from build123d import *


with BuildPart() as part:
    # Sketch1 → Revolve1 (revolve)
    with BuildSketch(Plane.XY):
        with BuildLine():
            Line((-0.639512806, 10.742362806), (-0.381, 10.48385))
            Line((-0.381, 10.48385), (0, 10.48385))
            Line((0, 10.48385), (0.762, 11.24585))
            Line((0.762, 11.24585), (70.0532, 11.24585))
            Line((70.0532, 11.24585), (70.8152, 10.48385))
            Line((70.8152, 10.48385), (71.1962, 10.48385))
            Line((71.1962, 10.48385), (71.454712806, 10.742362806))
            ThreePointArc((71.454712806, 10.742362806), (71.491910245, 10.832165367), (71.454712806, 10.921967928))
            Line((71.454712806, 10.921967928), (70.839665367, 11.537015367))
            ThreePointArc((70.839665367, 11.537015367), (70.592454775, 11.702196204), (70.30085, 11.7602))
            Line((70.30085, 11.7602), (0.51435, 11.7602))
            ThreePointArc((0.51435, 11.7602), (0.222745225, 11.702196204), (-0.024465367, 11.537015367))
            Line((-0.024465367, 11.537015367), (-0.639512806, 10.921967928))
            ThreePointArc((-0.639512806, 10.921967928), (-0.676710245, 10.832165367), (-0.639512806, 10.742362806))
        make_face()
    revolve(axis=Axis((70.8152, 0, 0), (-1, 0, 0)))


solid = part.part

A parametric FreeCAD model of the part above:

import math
import FreeCAD as App
import Part
import Sketcher
Q = App.Units.Quantity

doc = App.newDocument("Part")
params = doc.addObject("Spreadsheet::Sheet", "Params")
for row, (alias, value) in enumerate([
    ("sketch1_radius", "0.03 in"),
    ("sketch1_radius2", "0.005 in"),
    ("sketch1_width", "0.015 in"),
    ("sketch1_width2", "2.728 in"),
    ("revolution_angle", "360 deg"),
], start=1):
    params.set(f"A{row}", alias)
    params.set(f"B{row}", "=" + value)
    params.setAlias(f"B{row}", alias)

body = doc.addObject("PartDesign::Body", "Body")

# Sketch on XY plane
sketch1 = body.newObject("Sketcher::SketchObject", "Sketch")
sketch1.AttachmentSupport = (doc.getObject("XY_Plane"), [""])
sketch1.MapMode = "FlatFace"
sketch1.addGeometry([
    Part.LineSegment(App.Vector(-0.64, 10.74, 0), App.Vector(-0.38, 10.48, 0)),  # 0
    Part.LineSegment(App.Vector(-0.38, 10.48, 0), App.Vector(0, 10.48, 0)),  # 1
    Part.LineSegment(App.Vector(0, 10.48, 0), App.Vector(0.76, 11.25, 0)),  # 2
    Part.LineSegment(App.Vector(0.76, 11.25, 0), App.Vector(70.05, 11.25, 0)),  # 3
    Part.LineSegment(App.Vector(70.05, 11.25, 0), App.Vector(70.82, 10.48, 0)),  # 4
    Part.LineSegment(App.Vector(70.82, 10.48, 0), App.Vector(71.2, 10.48, 0)),  # 5
    Part.LineSegment(App.Vector(71.2, 10.48, 0), App.Vector(71.45, 10.74, 0)),  # 6
    Part.ArcOfCircle(Part.Circle(App.Vector(71.36, 10.83, 0), App.Vector(0, 0, 1), 0.13), math.radians(-45), math.radians(45)),  # 7
    Part.LineSegment(App.Vector(71.45, 10.92, 0), App.Vector(70.84, 11.54, 0)),  # 8
    Part.ArcOfCircle(Part.Circle(App.Vector(70.3, 11, 0), App.Vector(0, 0, 1), 0.76), math.radians(45), math.radians(90)),  # 9
    Part.LineSegment(App.Vector(70.3, 11.76, 0), App.Vector(0.51, 11.76, 0)),  # 10
    Part.ArcOfCircle(Part.Circle(App.Vector(0.51, 11, 0), App.Vector(0, 0, 1), 0.76), math.radians(90), math.radians(135)),  # 11
    Part.LineSegment(App.Vector(-0.02, 11.54, 0), App.Vector(-0.64, 10.92, 0)),  # 12
    Part.ArcOfCircle(Part.Circle(App.Vector(-0.55, 10.83, 0), App.Vector(0, 0, 1), 0.13), math.radians(135), math.radians(225)),  # 13
], False)
sketch1.addConstraint([
    Sketcher.Constraint("Coincident", 0, 2, 1, 1),
    Sketcher.Constraint("Coincident", 1, 2, 2, 1),
    Sketcher.Constraint("Coincident", 2, 2, 3, 1),
    Sketcher.Constraint("Coincident", 3, 2, 4, 1),
    Sketcher.Constraint("Coincident", 4, 2, 5, 1),
    Sketcher.Constraint("Coincident", 5, 2, 6, 1),
    Sketcher.Constraint("Tangent", 6, 2, 7, 1),
    Sketcher.Constraint("Tangent", 7, 2, 8, 1),
    Sketcher.Constraint("Tangent", 8, 2, 9, 1),
    Sketcher.Constraint("Tangent", 9, 2, 10, 1),
    Sketcher.Constraint("Tangent", 10, 2, 11, 1),
    Sketcher.Constraint("Tangent", 11, 2, 12, 1),
    Sketcher.Constraint("Tangent", 12, 2, 13, 1),
    Sketcher.Constraint("Tangent", 13, 2, 0, 1),
    Sketcher.Constraint("Horizontal", 1),
    Sketcher.Constraint("Horizontal", 3),
    Sketcher.Constraint("Horizontal", 5),
    Sketcher.Constraint("Horizontal", 10),
    Sketcher.Constraint("Equal", 9, 11),
    Sketcher.Constraint("Equal", 7, 13),
    Sketcher.Constraint("PointOnObject", 1, 2, -2),
    Sketcher.Constraint("Perpendicular", 0, 2),
    Sketcher.Constraint("Perpendicular", 2, 4),
    Sketcher.Constraint("Perpendicular", 4, 6),
    Sketcher.Constraint("Perpendicular", 6, 8),
    Sketcher.Constraint("Perpendicular", 8, 12),
    Sketcher.Constraint("Horizontal", 7, 3, 13, 3),
    Sketcher.Constraint("Horizontal", 1, 2, 4, 2),
    Sketcher.Constraint("Horizontal", 8, 2, 11, 2),
    Sketcher.Constraint("Equal", 1, 5),
    Sketcher.Constraint("Radius", 9, Q("0.03 in")),
    Sketcher.Constraint("Radius", 7, Q("0.005 in")),
    Sketcher.Constraint("DistanceX", 1, 1, 1, 2, Q("0.015 in")),
    Sketcher.Constraint("DistanceX", 3, 1, 3, 2, Q("2.728 in")),
    Sketcher.Constraint("DistanceX", -1, 1, 2, 2, Q("0.03 in")),
    Sketcher.Constraint("DistanceX", 10, 2, 10, 1, Q("2.7475 in")),
    Sketcher.Constraint("DistanceY", -1, 1, 9, 3, Q("0.433 in")),
    Sketcher.Constraint("Distance", 8, 0.869808),
])
sketch1.setExpression("Constraints[30]", "Params.sketch1_radius")
sketch1.setExpression("Constraints[31]", "Params.sketch1_radius2")
sketch1.setExpression("Constraints[32]", "Params.sketch1_width")
sketch1.setExpression("Constraints[33]", "Params.sketch1_width2")
revolution = body.newObject("PartDesign::Revolution", "Revolution")
revolution.Profile = sketch1
revolution.ReferenceAxis = (sketch1, ["H_Axis"])
revolution.setExpression("Angle", "Params.revolution_angle")

doc.recompute()
